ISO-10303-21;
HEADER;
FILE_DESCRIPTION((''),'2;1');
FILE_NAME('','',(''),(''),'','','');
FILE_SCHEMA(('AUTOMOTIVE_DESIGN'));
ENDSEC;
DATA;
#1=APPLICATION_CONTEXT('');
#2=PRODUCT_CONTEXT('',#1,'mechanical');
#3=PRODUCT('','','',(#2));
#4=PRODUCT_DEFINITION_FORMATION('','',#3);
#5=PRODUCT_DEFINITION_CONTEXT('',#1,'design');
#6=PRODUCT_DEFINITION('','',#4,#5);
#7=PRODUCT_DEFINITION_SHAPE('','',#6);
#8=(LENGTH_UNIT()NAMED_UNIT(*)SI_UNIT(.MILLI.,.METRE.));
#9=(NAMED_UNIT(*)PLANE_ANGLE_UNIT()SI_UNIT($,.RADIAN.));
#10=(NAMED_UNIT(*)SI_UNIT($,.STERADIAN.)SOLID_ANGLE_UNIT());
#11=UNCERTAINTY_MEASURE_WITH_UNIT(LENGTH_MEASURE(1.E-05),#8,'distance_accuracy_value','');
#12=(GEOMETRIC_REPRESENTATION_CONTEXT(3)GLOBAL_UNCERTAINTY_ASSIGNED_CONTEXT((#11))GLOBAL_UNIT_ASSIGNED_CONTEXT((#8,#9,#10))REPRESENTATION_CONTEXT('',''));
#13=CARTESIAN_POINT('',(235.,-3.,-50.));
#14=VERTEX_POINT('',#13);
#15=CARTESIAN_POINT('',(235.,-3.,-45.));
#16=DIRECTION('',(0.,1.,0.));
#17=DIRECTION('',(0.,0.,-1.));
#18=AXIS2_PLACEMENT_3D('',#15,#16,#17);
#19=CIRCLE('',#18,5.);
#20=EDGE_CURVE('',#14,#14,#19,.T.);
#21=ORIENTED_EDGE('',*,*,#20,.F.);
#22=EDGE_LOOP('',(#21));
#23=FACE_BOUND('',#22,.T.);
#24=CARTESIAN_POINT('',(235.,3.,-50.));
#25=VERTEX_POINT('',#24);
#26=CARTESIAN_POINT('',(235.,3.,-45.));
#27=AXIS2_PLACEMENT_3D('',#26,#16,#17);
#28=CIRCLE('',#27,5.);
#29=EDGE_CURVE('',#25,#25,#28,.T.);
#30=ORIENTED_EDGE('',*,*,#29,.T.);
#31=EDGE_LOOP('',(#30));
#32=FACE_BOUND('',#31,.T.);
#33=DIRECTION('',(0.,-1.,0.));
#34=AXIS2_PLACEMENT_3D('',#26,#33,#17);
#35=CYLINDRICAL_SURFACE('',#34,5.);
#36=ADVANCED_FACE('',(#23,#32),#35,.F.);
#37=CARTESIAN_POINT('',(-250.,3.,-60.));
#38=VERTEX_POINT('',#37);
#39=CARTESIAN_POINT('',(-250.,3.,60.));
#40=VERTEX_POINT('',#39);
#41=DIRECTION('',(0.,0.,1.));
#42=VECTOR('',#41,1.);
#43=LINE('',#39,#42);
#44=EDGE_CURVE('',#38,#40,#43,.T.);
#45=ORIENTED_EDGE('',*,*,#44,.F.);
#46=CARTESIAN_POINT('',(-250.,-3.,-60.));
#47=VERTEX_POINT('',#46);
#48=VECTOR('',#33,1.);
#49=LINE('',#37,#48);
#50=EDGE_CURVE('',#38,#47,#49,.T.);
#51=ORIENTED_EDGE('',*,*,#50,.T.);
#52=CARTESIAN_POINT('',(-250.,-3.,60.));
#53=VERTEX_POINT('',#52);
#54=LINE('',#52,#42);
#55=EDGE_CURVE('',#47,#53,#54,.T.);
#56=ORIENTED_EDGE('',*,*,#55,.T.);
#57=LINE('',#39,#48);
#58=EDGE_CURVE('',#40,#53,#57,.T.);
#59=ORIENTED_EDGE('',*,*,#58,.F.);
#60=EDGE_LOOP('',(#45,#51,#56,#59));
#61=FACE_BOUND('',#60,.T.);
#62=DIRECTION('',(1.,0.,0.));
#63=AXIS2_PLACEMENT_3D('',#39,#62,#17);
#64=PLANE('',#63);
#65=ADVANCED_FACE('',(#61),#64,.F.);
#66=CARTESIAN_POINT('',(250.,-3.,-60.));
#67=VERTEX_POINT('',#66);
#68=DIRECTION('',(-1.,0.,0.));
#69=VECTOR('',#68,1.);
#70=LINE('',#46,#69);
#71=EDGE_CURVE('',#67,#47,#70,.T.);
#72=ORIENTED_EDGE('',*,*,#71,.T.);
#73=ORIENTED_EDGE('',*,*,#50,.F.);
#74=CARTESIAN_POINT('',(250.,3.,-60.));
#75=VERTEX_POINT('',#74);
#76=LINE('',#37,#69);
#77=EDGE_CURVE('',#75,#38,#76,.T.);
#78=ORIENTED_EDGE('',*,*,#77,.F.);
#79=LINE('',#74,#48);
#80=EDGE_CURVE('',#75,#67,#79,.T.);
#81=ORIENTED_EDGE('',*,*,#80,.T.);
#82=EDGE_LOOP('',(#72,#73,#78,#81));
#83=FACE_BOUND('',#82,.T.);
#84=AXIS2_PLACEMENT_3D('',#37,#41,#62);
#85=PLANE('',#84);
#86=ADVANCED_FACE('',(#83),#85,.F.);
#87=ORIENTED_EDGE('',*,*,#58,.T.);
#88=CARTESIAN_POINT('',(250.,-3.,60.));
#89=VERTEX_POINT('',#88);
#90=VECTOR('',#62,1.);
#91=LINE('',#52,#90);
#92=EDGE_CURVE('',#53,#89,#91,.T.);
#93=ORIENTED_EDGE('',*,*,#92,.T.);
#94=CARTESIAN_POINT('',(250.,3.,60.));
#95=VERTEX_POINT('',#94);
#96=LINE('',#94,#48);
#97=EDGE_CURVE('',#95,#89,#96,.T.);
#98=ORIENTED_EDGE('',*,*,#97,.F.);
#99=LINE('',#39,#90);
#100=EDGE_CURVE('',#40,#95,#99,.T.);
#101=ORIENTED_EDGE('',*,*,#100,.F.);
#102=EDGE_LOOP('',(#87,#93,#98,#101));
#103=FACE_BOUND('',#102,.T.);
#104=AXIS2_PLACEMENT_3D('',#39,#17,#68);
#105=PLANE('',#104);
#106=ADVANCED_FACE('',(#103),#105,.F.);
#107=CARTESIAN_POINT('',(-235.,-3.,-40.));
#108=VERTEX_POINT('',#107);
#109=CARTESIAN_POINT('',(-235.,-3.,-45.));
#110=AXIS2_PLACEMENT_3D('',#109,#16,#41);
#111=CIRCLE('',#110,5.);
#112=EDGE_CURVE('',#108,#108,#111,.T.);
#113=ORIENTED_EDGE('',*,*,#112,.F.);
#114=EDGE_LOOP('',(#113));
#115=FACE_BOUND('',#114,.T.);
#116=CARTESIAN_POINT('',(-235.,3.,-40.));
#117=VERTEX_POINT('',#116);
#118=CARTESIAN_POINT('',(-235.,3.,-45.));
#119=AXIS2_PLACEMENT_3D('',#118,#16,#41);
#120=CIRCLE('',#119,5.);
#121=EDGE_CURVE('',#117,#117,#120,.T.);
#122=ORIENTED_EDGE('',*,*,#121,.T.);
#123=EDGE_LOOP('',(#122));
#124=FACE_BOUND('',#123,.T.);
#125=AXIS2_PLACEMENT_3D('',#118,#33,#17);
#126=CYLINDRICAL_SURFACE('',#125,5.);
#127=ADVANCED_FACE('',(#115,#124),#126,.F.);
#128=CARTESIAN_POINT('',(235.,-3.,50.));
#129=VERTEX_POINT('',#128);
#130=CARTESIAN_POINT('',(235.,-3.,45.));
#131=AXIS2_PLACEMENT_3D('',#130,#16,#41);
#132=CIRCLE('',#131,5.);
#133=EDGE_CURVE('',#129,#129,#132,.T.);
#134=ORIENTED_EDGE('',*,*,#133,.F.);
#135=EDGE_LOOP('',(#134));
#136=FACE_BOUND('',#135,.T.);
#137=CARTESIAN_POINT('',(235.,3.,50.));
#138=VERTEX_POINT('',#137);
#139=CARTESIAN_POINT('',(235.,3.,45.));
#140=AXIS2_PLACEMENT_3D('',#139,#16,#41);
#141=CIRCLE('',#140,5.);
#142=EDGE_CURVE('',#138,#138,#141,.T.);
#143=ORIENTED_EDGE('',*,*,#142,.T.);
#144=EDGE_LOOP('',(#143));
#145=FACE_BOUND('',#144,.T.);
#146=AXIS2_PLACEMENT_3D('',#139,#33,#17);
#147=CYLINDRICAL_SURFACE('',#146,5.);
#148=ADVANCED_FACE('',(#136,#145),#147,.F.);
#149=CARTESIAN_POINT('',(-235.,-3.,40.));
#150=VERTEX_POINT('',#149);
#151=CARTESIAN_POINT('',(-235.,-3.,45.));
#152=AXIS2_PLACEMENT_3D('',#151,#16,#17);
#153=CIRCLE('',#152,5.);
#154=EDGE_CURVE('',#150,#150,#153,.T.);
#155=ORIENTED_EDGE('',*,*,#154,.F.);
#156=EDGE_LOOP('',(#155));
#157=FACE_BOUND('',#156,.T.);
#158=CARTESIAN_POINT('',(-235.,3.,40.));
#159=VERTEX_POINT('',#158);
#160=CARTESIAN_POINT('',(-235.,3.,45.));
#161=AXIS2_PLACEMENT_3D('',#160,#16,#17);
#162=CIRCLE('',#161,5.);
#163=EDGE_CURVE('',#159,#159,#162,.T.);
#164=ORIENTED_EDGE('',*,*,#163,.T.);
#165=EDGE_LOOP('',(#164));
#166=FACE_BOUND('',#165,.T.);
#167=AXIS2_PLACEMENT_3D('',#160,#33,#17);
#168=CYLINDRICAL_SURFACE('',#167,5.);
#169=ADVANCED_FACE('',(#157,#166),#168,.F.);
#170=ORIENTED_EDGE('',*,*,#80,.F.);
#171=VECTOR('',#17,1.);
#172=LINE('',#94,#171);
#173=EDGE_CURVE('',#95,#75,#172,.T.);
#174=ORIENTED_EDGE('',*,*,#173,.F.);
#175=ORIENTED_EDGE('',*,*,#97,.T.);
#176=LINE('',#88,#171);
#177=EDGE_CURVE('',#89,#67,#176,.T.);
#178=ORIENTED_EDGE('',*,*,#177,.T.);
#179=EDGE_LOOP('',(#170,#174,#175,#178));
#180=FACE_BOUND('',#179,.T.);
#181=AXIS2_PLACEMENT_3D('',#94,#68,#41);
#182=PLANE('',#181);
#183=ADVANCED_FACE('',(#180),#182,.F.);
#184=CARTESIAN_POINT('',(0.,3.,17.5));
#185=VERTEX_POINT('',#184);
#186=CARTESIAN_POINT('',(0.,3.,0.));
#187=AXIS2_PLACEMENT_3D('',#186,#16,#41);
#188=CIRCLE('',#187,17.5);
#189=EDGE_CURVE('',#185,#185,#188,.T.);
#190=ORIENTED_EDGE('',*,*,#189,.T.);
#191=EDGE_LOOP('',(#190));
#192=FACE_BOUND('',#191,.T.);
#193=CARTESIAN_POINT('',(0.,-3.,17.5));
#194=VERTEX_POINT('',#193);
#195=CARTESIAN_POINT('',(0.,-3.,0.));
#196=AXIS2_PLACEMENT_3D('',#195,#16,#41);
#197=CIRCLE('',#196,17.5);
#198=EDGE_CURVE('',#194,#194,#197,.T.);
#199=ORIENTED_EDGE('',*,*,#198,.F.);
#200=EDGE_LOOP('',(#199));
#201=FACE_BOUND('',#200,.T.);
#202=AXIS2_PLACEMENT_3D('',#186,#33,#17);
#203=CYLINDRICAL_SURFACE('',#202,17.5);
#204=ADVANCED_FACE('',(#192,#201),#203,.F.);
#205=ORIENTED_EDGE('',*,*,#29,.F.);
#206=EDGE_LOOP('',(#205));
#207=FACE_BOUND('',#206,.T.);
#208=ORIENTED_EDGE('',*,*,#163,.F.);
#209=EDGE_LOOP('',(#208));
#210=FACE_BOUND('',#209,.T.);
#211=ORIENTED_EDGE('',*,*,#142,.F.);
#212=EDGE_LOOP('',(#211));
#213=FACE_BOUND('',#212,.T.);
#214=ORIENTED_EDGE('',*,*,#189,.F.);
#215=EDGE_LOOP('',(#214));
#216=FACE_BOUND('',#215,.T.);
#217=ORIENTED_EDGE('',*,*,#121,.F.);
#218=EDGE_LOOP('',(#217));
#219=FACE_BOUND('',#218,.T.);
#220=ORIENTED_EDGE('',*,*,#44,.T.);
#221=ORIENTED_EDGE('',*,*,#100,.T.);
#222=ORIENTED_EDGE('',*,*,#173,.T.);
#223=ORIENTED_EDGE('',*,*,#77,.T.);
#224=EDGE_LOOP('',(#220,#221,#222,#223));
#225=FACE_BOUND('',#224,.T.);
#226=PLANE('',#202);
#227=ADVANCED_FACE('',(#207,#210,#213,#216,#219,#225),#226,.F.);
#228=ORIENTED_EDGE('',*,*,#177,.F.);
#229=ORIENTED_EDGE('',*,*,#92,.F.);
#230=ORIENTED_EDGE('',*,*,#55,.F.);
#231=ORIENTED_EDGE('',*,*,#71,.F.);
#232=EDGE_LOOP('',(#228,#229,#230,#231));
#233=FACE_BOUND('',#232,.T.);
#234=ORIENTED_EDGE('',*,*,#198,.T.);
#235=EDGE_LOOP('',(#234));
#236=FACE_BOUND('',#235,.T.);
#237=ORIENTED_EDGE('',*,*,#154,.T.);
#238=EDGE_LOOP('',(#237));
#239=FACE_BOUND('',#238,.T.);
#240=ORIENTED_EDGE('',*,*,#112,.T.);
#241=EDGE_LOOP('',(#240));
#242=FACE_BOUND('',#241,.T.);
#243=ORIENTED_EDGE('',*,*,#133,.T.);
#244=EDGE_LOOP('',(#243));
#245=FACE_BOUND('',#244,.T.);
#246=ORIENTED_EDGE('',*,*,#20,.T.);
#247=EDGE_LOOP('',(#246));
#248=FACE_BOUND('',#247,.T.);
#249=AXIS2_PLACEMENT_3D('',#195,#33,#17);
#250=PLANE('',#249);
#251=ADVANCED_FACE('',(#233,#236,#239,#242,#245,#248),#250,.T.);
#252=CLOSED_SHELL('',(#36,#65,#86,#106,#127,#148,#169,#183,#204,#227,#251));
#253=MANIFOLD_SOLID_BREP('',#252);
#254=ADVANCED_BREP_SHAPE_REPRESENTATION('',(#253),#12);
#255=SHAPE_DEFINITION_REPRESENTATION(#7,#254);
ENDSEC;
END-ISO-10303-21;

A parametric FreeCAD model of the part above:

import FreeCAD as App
import Part
import Sketcher
from FreeCAD import Vector
Q = App.Units.Quantity


def add_polygon(sketch, points):
    """Adds a closed chain of lines whose ends are joined by coincident constraints."""
    first, n = sketch.GeometryCount, len(points)
    for a, b in zip(points, points[1:] + points[:1]):
        sketch.addGeometry(Part.LineSegment(App.Vector(*a, 0), App.Vector(*b, 0)), False)
    for i in range(n):
        sketch.addConstraint(Sketcher.Constraint("Coincident", first + i, 2, first + (i + 1) % n, 1))

doc = App.newDocument("Part")
body = doc.addObject("PartDesign::Body", "Body")

# Sketch on XZ plane
sketch1 = body.newObject("Sketcher::SketchObject", "Sketch")
sketch1.AttachmentSupport = (doc.getObject("XZ_Plane"), [""])
sketch1.MapMode = "FlatFace"
add_polygon(sketch1, [(-250, -60), (-250, 60), (250, 60), (250, -60)])  # lines 0-3
sketch1.addGeometry(Part.Circle(Vector(-235, 45, 0), Vector(0, 0, 1), 5), False)  # 4
sketch1.addGeometry(Part.Circle(Vector(235, 45, 0), Vector(0, 0, 1), 5), False)  # 5
sketch1.addGeometry(Part.Circle(Vector(-235, -45, 0), Vector(0, 0, 1), 5), False)  # 6
sketch1.addGeometry(Part.Circle(Vector(0, 0, 0), Vector(0, 0, 1), 17.5), False)  # 7
sketch1.addGeometry(Part.Circle(Vector(235, -45, 0), Vector(0, 0, 1), 5), False)  # 8
sketch1.addConstraint([
    Sketcher.Constraint("Vertical", 0),
    Sketcher.Constraint("Horizontal", 1),
    Sketcher.Constraint("Vertical", 2),
    Sketcher.Constraint("Horizontal", 3),
    Sketcher.Constraint("Coincident", 7, 3, -1, 1),
    Sketcher.Constraint("Equal", 4, 5),
    Sketcher.Constraint("Equal", 5, 6),
    Sketcher.Constraint("Equal", 6, 8),
    Sketcher.Constraint("Symmetric", 5, 3, 6, 3, -1, 1),
    Sketcher.Constraint("Symmetric", 4, 3, 8, 3, -1, 1),
    Sketcher.Constraint("Symmetric", 0, 2, 2, 2, -1, 1),
    Sketcher.Constraint("Symmetric", 4, 3, 5, 3, -2),
    Sketcher.Constraint("Diameter", 4, Q("10 mm")),
    Sketcher.Constraint("Diameter", 7, Q("35 mm")),
    Sketcher.Constraint("DistanceX", 1, 1, 1, 2, Q("500 mm")),
    Sketcher.Constraint("DistanceY", 0, 1, 0, 2, Q("120 mm")),
    Sketcher.Constraint("DistanceX", 4, 3, -1, 1, Q("235 mm")),
    Sketcher.Constraint("DistanceY", -1, 1, 4, 3, Q("45 mm")),
])
pad1 = body.newObject("PartDesign::Pad", "Pad")
pad1.Profile = sketch1
pad1.Length = 6
pad1.Midplane = True

doc.recompute()
